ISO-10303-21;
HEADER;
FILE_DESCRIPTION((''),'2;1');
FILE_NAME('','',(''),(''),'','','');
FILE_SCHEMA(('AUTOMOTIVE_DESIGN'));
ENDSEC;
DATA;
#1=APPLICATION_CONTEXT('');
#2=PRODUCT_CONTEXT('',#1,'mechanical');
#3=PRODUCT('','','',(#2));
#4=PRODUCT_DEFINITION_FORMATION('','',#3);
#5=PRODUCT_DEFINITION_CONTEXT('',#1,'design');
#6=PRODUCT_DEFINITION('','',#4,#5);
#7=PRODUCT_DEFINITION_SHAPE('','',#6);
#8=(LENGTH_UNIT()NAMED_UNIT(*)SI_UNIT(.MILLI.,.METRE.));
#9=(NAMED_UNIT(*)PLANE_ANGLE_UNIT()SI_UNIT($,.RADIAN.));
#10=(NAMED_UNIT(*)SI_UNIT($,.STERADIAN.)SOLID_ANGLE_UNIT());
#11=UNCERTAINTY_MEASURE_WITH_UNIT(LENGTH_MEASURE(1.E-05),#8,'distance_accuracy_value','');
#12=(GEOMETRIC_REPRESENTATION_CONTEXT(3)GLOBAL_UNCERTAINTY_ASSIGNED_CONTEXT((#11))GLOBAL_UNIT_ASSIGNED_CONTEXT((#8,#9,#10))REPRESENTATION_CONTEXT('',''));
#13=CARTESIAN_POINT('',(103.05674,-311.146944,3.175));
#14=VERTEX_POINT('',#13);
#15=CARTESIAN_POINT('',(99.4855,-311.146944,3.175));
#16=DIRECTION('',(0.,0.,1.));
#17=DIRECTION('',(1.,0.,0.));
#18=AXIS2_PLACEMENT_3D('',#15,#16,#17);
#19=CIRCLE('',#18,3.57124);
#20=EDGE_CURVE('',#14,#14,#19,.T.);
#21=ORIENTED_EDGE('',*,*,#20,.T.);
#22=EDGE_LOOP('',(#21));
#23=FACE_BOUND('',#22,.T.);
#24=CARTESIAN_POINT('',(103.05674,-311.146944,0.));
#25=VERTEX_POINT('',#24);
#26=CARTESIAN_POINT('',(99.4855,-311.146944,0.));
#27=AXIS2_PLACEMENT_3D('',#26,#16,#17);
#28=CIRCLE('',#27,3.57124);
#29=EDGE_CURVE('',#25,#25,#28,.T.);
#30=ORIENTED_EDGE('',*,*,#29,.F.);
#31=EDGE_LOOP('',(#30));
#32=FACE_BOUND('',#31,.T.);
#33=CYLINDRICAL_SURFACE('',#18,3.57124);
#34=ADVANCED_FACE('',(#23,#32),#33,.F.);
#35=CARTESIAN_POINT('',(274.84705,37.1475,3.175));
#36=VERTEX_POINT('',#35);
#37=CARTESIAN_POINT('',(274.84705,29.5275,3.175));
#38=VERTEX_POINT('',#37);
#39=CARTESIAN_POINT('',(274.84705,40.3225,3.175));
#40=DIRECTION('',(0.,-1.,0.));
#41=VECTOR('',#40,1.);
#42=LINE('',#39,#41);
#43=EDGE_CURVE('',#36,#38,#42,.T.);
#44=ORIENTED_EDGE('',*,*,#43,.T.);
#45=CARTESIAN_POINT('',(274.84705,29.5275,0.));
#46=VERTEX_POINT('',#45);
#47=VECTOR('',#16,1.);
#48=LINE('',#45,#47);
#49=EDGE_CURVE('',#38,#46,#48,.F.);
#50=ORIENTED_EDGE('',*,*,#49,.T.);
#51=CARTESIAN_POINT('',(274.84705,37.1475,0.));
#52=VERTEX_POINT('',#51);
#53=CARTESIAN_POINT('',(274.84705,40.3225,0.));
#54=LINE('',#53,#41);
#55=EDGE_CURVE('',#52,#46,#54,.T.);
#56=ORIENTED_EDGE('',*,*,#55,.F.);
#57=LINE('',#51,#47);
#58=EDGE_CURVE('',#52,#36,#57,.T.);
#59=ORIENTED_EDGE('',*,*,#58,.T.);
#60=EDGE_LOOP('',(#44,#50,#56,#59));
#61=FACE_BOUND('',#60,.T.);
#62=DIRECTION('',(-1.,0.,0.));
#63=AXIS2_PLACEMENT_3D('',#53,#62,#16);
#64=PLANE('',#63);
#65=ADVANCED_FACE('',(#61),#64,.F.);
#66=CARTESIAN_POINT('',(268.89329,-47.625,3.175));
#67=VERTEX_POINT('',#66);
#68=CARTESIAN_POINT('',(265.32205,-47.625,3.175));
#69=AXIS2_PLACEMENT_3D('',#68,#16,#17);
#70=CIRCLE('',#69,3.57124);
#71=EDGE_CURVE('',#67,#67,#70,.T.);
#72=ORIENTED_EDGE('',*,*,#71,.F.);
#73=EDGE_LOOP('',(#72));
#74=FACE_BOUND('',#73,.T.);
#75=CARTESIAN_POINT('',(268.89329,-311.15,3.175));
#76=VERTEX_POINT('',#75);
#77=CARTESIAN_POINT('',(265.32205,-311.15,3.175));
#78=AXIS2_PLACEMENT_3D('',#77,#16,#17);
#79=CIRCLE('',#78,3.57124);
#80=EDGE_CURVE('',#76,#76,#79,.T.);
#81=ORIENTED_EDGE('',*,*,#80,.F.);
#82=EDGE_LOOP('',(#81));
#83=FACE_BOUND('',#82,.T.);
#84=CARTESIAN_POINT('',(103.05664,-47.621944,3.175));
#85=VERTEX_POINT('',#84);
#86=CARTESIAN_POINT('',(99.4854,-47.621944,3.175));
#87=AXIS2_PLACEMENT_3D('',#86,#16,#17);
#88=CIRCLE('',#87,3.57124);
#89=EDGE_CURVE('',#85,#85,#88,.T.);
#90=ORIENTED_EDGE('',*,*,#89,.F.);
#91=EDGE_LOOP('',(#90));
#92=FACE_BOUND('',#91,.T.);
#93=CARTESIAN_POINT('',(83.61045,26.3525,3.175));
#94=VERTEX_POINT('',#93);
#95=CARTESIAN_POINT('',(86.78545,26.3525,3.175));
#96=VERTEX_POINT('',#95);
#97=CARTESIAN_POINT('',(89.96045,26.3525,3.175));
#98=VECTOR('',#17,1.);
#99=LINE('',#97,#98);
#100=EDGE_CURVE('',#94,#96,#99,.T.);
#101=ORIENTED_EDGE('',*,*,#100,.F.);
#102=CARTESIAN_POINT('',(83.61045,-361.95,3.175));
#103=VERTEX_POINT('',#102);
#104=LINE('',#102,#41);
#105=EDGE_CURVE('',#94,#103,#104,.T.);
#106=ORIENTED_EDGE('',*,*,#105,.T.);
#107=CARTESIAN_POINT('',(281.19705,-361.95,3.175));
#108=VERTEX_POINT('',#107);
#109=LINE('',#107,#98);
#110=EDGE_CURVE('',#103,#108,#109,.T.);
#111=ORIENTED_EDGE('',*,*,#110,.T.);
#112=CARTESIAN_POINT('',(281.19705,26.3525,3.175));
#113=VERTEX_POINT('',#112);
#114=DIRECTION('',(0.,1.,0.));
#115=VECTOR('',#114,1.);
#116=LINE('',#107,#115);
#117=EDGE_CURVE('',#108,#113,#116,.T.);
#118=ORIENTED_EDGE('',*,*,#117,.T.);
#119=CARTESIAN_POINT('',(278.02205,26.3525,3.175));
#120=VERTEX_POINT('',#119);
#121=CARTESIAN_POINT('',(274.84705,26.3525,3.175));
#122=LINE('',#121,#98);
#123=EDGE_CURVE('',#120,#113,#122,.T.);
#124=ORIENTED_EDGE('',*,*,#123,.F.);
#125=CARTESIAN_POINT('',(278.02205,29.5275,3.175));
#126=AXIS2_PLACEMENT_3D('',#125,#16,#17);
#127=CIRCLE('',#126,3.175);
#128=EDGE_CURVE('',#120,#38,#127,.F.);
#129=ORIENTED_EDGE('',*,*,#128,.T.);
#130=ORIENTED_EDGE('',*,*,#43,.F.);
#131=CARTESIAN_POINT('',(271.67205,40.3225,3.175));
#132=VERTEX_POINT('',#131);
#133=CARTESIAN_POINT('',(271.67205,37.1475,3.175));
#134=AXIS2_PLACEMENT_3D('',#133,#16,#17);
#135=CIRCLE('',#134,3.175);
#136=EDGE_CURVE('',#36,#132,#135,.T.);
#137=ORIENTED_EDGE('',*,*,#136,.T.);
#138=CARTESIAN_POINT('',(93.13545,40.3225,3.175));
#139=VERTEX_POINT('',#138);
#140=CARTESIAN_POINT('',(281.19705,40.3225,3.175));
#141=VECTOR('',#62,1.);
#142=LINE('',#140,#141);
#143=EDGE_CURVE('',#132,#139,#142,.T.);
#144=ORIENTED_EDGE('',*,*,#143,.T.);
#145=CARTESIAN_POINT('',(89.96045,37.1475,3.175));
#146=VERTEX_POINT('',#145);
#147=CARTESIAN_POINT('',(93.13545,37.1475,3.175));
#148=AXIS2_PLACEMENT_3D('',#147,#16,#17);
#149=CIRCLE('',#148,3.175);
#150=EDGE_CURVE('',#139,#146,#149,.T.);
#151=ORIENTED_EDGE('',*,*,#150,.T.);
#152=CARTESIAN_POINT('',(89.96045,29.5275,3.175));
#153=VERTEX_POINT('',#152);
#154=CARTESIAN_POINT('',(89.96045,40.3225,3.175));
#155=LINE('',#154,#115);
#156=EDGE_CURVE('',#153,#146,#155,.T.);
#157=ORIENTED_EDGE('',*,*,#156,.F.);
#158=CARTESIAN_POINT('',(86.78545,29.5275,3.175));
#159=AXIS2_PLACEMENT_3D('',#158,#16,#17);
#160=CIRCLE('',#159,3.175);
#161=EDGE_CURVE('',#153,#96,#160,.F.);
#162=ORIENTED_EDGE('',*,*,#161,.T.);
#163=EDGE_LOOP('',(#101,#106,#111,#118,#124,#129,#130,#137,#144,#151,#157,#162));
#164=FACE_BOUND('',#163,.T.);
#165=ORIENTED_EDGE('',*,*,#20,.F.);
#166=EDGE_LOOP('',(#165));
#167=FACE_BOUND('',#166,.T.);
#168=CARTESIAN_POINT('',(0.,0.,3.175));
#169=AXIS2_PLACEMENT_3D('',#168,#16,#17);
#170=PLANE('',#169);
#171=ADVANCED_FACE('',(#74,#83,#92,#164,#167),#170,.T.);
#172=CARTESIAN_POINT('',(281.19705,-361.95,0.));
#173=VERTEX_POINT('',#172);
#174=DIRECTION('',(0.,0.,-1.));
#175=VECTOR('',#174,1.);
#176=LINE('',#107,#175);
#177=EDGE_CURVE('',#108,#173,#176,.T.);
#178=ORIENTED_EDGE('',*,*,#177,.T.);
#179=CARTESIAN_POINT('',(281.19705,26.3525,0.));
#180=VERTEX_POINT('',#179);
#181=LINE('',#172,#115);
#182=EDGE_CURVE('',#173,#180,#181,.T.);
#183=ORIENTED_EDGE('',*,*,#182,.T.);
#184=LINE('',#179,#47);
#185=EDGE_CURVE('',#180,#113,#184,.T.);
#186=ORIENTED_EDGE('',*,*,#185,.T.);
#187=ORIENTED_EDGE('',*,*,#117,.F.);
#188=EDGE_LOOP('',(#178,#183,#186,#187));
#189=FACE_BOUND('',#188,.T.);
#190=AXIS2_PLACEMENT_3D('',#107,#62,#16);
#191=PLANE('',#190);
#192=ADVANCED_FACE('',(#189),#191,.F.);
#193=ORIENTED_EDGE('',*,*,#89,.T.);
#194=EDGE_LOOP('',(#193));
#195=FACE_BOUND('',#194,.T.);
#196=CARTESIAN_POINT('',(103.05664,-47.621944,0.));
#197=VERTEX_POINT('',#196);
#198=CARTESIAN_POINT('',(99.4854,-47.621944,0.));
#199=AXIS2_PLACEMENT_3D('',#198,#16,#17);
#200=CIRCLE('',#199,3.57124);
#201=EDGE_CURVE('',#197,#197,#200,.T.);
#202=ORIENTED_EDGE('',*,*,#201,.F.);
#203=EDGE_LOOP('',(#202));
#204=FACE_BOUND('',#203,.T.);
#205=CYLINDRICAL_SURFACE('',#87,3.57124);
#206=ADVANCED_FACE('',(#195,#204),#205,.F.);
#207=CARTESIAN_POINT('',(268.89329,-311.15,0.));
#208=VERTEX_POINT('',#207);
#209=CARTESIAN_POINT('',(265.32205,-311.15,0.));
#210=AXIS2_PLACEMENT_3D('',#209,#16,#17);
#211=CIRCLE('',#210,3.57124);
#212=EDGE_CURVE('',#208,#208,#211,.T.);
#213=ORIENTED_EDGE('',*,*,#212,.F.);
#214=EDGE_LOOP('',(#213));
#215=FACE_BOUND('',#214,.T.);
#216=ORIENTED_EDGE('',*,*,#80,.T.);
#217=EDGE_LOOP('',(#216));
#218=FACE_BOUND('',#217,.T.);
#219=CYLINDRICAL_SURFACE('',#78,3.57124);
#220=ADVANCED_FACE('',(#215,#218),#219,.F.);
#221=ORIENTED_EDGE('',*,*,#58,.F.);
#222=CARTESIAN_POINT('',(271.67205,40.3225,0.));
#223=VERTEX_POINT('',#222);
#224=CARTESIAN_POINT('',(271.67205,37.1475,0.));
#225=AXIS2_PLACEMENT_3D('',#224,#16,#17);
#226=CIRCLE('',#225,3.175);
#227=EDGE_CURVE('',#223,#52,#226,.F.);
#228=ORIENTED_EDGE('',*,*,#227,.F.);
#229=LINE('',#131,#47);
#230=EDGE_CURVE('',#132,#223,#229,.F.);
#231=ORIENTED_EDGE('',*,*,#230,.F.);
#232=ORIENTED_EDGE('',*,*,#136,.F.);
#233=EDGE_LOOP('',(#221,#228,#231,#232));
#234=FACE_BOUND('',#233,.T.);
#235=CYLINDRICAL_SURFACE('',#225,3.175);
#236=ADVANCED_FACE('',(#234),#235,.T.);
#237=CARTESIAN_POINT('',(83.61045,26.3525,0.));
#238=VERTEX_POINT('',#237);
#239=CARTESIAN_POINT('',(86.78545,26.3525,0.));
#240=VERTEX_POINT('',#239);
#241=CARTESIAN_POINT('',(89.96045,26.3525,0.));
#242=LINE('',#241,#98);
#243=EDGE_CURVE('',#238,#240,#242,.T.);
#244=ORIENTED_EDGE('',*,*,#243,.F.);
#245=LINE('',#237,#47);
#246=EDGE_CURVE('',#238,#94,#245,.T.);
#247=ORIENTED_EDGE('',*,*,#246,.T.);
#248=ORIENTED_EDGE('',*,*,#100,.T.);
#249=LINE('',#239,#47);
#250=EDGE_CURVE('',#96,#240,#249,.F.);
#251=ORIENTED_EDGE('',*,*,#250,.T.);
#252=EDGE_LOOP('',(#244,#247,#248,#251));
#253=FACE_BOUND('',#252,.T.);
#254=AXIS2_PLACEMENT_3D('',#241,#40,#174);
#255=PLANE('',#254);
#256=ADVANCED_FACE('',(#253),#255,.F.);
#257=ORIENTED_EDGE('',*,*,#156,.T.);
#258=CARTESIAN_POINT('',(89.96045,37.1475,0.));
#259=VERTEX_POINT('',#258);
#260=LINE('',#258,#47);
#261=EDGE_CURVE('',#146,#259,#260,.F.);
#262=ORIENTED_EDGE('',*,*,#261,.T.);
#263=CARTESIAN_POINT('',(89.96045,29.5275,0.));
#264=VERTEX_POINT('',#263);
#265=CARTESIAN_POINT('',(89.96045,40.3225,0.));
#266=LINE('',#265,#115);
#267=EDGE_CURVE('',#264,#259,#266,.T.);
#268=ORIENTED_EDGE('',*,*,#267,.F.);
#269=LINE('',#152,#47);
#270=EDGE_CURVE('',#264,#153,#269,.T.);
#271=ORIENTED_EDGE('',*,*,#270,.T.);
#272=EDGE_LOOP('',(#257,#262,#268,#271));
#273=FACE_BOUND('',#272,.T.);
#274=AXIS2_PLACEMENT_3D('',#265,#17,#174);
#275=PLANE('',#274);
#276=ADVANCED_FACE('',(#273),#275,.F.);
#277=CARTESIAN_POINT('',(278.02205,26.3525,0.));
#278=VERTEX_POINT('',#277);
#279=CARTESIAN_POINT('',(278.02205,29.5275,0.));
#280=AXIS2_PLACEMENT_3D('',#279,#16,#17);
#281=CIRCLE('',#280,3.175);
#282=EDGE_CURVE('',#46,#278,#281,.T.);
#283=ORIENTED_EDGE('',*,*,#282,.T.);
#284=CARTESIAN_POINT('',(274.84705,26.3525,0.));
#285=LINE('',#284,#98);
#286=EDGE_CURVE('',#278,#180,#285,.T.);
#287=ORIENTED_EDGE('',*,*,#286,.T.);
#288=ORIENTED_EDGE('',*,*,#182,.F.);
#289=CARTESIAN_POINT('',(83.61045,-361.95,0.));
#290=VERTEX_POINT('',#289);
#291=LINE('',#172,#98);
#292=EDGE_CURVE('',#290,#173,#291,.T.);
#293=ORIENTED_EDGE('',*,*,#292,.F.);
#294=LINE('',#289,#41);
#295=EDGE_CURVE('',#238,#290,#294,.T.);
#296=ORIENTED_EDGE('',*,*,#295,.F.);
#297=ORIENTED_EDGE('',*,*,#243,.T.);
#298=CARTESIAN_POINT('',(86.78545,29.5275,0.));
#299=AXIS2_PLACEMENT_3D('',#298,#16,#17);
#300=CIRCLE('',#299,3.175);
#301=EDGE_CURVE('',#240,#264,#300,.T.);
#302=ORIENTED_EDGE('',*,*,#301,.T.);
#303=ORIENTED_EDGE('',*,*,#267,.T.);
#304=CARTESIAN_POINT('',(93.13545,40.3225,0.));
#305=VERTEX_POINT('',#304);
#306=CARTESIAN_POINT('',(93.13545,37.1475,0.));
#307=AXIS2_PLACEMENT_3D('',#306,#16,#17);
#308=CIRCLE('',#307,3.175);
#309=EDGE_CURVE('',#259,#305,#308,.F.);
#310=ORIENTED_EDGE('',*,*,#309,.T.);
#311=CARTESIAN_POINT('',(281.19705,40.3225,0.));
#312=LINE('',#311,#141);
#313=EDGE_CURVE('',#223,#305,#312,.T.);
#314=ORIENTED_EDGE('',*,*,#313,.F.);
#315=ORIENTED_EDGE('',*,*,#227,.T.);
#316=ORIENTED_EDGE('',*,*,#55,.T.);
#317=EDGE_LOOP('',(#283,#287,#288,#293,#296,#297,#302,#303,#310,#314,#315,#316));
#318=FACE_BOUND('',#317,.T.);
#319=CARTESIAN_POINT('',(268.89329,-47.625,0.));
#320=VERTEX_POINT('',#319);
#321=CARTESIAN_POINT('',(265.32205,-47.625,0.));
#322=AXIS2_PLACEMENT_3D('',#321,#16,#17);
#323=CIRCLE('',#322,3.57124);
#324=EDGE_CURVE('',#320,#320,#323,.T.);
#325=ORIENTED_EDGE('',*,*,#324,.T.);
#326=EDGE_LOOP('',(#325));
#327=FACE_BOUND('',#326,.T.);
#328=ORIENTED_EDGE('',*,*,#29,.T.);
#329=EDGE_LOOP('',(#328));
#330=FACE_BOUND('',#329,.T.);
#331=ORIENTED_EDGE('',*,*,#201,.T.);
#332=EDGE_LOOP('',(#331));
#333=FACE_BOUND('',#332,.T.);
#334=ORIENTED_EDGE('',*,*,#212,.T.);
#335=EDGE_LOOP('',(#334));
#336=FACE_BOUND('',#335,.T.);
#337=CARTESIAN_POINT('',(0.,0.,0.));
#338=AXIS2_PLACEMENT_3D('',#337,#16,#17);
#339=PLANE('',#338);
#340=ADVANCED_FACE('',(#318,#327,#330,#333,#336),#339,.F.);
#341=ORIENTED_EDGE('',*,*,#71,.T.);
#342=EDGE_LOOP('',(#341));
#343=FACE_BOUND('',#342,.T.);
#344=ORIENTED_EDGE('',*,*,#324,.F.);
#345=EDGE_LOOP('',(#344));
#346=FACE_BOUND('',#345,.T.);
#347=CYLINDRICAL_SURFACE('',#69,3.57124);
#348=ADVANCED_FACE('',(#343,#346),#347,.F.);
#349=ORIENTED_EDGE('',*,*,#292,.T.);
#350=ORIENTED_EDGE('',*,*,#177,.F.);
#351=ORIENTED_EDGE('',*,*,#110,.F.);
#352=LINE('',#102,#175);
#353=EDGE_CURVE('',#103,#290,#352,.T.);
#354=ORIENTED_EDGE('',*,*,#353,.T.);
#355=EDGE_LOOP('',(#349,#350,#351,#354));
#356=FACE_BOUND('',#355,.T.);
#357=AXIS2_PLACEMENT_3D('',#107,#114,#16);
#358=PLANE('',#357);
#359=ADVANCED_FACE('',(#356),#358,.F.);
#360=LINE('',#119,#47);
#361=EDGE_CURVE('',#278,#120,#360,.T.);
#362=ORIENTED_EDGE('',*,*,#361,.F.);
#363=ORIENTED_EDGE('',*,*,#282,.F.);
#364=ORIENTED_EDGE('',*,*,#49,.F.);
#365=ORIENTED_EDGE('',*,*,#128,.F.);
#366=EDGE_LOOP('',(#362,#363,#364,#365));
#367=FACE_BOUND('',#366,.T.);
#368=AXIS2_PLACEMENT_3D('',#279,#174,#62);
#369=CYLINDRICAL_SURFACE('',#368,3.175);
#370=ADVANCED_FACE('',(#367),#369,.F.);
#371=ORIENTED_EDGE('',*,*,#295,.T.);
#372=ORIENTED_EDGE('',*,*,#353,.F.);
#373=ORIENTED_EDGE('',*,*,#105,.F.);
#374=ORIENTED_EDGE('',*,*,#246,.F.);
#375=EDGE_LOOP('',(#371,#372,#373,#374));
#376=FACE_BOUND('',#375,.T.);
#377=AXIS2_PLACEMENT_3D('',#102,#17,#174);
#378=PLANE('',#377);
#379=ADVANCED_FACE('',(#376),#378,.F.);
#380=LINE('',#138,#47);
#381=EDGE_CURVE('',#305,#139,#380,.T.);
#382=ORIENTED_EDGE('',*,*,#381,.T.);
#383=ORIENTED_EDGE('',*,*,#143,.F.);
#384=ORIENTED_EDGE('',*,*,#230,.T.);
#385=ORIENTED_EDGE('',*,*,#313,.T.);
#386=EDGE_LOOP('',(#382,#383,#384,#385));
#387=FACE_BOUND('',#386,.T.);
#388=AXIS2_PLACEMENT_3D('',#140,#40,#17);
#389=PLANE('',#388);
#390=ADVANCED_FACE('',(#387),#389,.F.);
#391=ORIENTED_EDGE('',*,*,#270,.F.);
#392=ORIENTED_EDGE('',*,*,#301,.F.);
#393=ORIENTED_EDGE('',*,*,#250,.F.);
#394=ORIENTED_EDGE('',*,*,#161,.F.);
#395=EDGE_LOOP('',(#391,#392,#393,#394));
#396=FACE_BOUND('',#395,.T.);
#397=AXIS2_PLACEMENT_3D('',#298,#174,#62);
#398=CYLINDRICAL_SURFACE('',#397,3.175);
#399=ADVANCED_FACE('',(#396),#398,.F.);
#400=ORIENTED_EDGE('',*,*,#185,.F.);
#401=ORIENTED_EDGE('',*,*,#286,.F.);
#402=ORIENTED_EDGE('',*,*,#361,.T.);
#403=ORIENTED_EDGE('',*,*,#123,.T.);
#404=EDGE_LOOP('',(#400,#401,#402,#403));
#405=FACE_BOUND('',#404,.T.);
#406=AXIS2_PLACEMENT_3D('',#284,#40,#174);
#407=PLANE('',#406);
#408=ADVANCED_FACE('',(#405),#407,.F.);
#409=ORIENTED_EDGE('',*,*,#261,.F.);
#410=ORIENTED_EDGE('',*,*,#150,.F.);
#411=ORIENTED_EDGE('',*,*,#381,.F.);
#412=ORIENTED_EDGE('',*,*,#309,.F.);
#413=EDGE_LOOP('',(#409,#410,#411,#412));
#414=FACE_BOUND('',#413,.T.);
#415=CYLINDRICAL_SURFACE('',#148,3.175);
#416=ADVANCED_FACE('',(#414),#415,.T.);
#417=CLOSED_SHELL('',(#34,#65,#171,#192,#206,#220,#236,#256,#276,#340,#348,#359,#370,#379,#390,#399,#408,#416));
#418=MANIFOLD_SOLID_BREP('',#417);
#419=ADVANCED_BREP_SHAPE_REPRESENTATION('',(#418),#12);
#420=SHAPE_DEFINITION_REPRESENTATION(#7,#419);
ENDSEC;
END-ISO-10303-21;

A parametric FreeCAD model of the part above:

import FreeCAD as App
import Part
import Sketcher

V = App.Vector
Q = App.Units.Quantity


def edges_at(feature, points):
    """Names of the edges that pass closest to the given points."""
    edges = feature.Shape.Edges
    near = lambda p: min(range(len(edges)), key=lambda i: edges[i].distToShape(Part.Vertex(*p))[0])
    return sorted({f"Edge{near(p) + 1}" for p in points})


def add_polygon(sketch, points):
    """Adds a closed chain of lines whose ends are joined by coincident constraints."""
    first, n = sketch.GeometryCount, len(points)
    for a, b in zip(points, points[1:] + points[:1]):
        sketch.addGeometry(Part.LineSegment(App.Vector(*a, 0), App.Vector(*b, 0)), False)
    for i in range(n):
        sketch.addConstraint(Sketcher.Constraint("Coincident", first + i, 2, first + (i + 1) % n, 1))

doc = App.newDocument("Part")
params = doc.addObject("Spreadsheet::Sheet", "Params")
for row, (alias, value) in enumerate([
    ("sketch1_width", "7.779 in"),
    ("pad1_length", "0.125 in"),
    ("sketch2_width", "0.25 in"),
    ("sketch2_height", "0.55 in"),
    ("fillet_radius", "0.125 in"),
    ("hole_diameter", "0.2812 in"),
    ("hole_depth", "0.125 in"),
], start=1):
    params.set(f"A{row}", alias)
    params.set(f"B{row}", "=" + value)
    params.setAlias(f"B{row}", alias)

body = doc.addObject("PartDesign::Body", "Body")

sketch1 = doc.addObject("Sketcher::SketchObject", "Sketch")
body.addObject(sketch1)
sketch1.AttachmentSupport = (doc.XY_Plane, [""])
sketch1.MapMode = "FlatFace"
add_polygon(sketch1, [(84, 40), (84, -362), (281, -362), (281, 40)])
sketch1.addConstraint([
    Sketcher.Constraint("Vertical", 0),
    Sketcher.Constraint("Horizontal", 1),
    Sketcher.Constraint("Vertical", 2),
    Sketcher.Constraint("Horizontal", 3),
    Sketcher.Constraint("DistanceX", 1, 1, 1, 2, Q("7.779 in")),
    Sketcher.Constraint("DistanceY", 0, 2, -1, 1, Q("14.25 in")),
    Sketcher.Constraint("DistanceY", 0, 2, 0, 1, Q("15.8375 in")),
    Sketcher.Constraint("DistanceX", -1, 1, 0, 2, Q("83.61045 mm")),
])
sketch1.setExpression("Constraints[8]", "Params.sketch1_width")
pad1 = doc.addObject("PartDesign::Pad", "Pad")
body.addObject(pad1)
pad1.Profile = sketch1
pad1.setExpression("Length", "Params.pad1_length")

sketch2 = doc.addObject("Sketcher::SketchObject", "Sketch001")
body.addObject(sketch2)
sketch2.AttachmentSupport = (doc.XY_Plane, [""])
sketch2.MapMode = "FlatFace"
sketch2.AttachmentOffset = App.Placement(V(0, 0, 0.125 * 25.4), App.Rotation())
add_polygon(sketch2, [(84, 40), (84, 26), (90, 26), (90, 40)])
add_polygon(sketch2, [(275, 40), (275, 26), (281, 26), (281, 40)])
sketch2.addConstraint([
    Sketcher.Constraint("Vertical", 0),
    Sketcher.Constraint("Horizontal", 1),
    Sketcher.Constraint("Vertical", 2),
    Sketcher.Constraint("Horizontal", 3),
    Sketcher.Constraint("Vertical", 4),
    Sketcher.Constraint("Horizontal", 5),
    Sketcher.Constraint("Vertical", 6),
    Sketcher.Constraint("Horizontal", 7),
    Sketcher.Constraint("Horizontal", 1, 2, 4, 2),
    Sketcher.Constraint("Horizontal", 3, 2, 6, 2),
    Sketcher.Constraint("Equal", 3, 5),
    Sketcher.Constraint("DistanceX", 1, 1, 1, 2, Q("0.25 in")),
    Sketcher.Constraint("DistanceY", 0, 2, 0, 1, Q("0.55 in")),
    Sketcher.Constraint("DistanceX", 1, 2, 4, 2, Q("7.279 in")),
    Sketcher.Constraint("DistanceY", -1, 1, 0, 2, Q("1.0375 in")),
    Sketcher.Constraint("DistanceX", -1, 1, 0, 2, Q("83.61045 mm")),
])
sketch2.setExpression("Constraints[19]", "Params.sketch2_width")
sketch2.setExpression("Constraints[20]", "Params.sketch2_height")
pocket1 = doc.addObject("PartDesign::Pocket", "Pocket")
body.addObject(pocket1)
pocket1.Profile = sketch2
pocket1.Type = "ThroughAll"
doc.recompute()

fillet = doc.addObject("PartDesign::Fillet", "Fillet")
body.addObject(fillet)
fillet.Base = (pocket1, edges_at(pocket1, [
    (89.96, 40.322, 1.587),
    (89.96, 26.352, 1.587),
    (274.847, 26.352, 1.587),
    (274.847, 40.322, 1.587),
]))
fillet.setExpression("Radius", "Params.fillet_radius")

sketch3 = doc.addObject("Sketcher::SketchObject", "Sketch002")
body.addObject(sketch3)
sketch3.AttachmentSupport = (doc.XY_Plane, [""])
sketch3.MapMode = "FlatFace"
sketch3.AttachmentOffset = App.Placement(V(0, 0, 0.125 * 25.4), App.Rotation())
sketch3.addGeometry([
    Part.Circle(V(99.5, -47.6, 0), V(0, 0, 1), 3.6),
    Part.Circle(V(265.3, -47.6, 0), V(0, 0, 1), 3.6),
    Part.Circle(V(265.3, -311.1, 0), V(0, 0, 1), 3.6),
    Part.Circle(V(99.5, -311.1, 0), V(0, 0, 1), 3.6),
], False)
sketch3.addConstraint([
    Sketcher.Constraint("Equal", 0, 1),
    Sketcher.Constraint("Equal", 1, 2),
    Sketcher.Constraint("Equal", 2, 3),
    Sketcher.Constraint("Vertical", 1, 3, 2, 3),
    Sketcher.Constraint("Diameter", 0, Q("0.2812 in")),
    Sketcher.Constraint("DistanceY", 2, 3, -1, 1, Q("12.25 in")),
    Sketcher.Constraint("DistanceY", 1, 3, -1, 1, Q("1.875 in")),
    Sketcher.Constraint("DistanceY", 3, 3, 0, 3, Q("10.375 in")),
    Sketcher.Constraint("DistanceX", -1, 1, 0, 3, Q("99.4854 mm")),
    Sketcher.Constraint("DistanceX", -1, 1, 3, 3, Q("99.4855 mm")),
    Sketcher.Constraint("DistanceX", -1, 1, 1, 3, Q("265.32205 mm")),
    Sketcher.Constraint("DistanceY", 0, 3, -1, 1, Q("47.621944 mm")),
])
doc.recompute()
hole = doc.addObject("PartDesign::Hole", "Hole")
body.addObject(hole)
hole.Profile = sketch3
hole.ThreadType = "None"
hole.setExpression("Diameter", "Params.hole_diameter")
hole.DepthType = "Dimension"
hole.setExpression("Depth", "Params.hole_depth")
hole.DrillPoint = "Flat"

doc.recompute()
